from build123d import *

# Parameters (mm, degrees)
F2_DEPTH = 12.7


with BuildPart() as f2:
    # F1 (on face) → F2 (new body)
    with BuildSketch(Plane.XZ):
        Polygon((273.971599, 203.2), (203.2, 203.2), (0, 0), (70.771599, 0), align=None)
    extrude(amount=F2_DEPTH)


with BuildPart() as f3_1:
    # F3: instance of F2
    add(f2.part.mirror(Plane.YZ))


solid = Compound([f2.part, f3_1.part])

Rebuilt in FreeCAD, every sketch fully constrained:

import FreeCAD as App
import Part
import Sketcher

V = App.Vector
Q = App.Units.Quantity


def add_polygon(sketch, points):
    """Adds a closed chain of lines whose ends are joined by coincident constraints."""
    first, n = sketch.GeometryCount, len(points)
    for a, b in zip(points, points[1:] + points[:1]):
        sketch.addGeometry(Part.LineSegment(App.Vector(*a, 0), App.Vector(*b, 0)), False)
    for i in range(n):
        sketch.addConstraint(Sketcher.Constraint("Coincident", first + i, 2, first + (i + 1) % n, 1))

doc = App.newDocument("Part")
params = doc.addObject("Spreadsheet::Sheet", "Params")
for row, (alias, value) in enumerate([
    ("pad1_length", "0.5 in"),
], start=1):
    params.set(f"A{row}", alias)
    params.set(f"B{row}", "=" + value)
    params.setAlias(f"B{row}", alias)

body = doc.addObject("PartDesign::Body", "Body")

# Sketch on XZ plane
sketch1 = body.newObject("Sketcher::SketchObject", "Sketch")
sketch1.AttachmentSupport = (doc.getObject("XZ_Plane"), [""])
sketch1.MapMode = "FlatFace"
add_polygon(sketch1, [(273.971599, 203.2), (203.2, 203.2), (0, 0), (70.771599, 0)])  # lines 0-3
sketch1.addConstraint([
    Sketcher.Constraint("Horizontal", 0),
    Sketcher.Constraint("Horizontal", 2),
    Sketcher.Constraint("Coincident", 1, 2, -1, 1),
    Sketcher.Constraint("Parallel", 1, 3),
    Sketcher.Constraint("DistanceX", -1, 1, 0, 2, Q("8 in")),
    Sketcher.Constraint("DistanceY", -1, 1, 0, 2, Q("8 in")),
    Sketcher.Constraint("DistanceX", 0, 2, 0, 1, Q("70.771599 mm")),
])
pad1 = body.newObject("PartDesign::Pad", "Pad")
pad1.Profile = sketch1
pad1.setExpression("Length", "Params.pad1_length")
body2 = doc.addObject("PartDesign::Body", "Body001")
doc.recompute()

mirroring = doc.addObject("Part::Mirroring", "Mirroring")
mirroring.Source = body
mirroring.Base = V(0, 0, 0)
mirroring.Normal = V(1, 0, 0)
body2.BaseFeature = mirroring
doc.recompute()
mirroring.Visibility = False

doc.recompute()
